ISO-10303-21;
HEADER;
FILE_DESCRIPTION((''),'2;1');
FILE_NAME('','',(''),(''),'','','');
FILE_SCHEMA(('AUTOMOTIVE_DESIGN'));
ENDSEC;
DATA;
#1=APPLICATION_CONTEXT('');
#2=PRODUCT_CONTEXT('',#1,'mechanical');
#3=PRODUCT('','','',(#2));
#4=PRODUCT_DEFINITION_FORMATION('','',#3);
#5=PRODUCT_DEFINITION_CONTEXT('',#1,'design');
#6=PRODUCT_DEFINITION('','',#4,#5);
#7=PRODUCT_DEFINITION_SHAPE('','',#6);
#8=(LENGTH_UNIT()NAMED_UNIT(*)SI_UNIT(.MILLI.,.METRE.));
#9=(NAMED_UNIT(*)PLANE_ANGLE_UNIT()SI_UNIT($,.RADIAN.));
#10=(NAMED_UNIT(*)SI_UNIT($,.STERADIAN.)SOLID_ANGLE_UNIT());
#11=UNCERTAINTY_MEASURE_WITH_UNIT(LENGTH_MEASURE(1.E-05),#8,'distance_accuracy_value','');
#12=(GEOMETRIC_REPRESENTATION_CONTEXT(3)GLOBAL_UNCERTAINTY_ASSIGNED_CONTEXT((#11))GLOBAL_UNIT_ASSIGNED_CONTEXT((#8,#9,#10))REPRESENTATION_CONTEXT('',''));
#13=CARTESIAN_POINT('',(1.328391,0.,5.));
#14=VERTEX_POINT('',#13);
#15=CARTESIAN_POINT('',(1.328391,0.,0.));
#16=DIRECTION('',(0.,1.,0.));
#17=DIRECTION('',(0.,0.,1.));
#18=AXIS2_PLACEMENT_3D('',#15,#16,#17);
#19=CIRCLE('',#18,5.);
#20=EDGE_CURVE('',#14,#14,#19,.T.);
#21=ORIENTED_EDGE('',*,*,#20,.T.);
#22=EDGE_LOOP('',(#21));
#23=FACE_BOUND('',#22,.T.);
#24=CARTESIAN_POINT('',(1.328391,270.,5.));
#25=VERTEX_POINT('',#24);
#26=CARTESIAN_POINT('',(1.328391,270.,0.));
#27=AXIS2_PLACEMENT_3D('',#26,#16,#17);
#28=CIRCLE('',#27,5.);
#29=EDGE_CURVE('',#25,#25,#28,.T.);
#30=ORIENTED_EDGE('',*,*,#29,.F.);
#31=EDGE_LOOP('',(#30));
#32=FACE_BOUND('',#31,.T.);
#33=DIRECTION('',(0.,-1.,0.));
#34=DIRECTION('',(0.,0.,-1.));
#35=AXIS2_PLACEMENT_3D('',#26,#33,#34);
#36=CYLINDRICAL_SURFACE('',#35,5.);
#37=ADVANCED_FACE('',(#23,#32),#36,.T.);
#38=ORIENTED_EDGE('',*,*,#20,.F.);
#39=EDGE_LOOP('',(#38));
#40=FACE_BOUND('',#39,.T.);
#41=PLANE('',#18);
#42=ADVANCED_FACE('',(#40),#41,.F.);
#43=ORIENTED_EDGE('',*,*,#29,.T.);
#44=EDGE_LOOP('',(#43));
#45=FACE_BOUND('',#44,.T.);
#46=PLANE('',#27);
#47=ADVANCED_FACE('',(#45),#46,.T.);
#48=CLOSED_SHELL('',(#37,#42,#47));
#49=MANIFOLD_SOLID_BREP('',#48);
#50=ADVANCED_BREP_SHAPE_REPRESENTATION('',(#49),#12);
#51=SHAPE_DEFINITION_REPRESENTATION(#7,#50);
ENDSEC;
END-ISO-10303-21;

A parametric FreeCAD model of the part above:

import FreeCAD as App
import Part
import Sketcher
from FreeCAD import Vector
Q = App.Units.Quantity

doc = App.newDocument("Part")
body = doc.addObject("PartDesign::Body", "Body")

sketch1 = doc.addObject("Sketcher::SketchObject", "Sketch")
body.addObject(sketch1)
sketch1.AttachmentSupport = (doc.XZ_Plane, [""])
sketch1.MapMode = "FlatFace"
sketch1.addGeometry(Part.Circle(Vector(1, 0, 0), Vector(0, 0, 1), 5), False)
sketch1.addConstraint(Sketcher.Constraint("PointOnObject", 0, 3, -1))
sketch1.addConstraint(Sketcher.Constraint("Diameter", 0, Q("10 mm")))
sketch1.addConstraint(Sketcher.Constraint("DistanceX", -1, 1, 0, 3, Q("1.328391 mm")))
pad1 = doc.addObject("PartDesign::Pad", "Pad")
body.addObject(pad1)
pad1.Profile = sketch1
pad1.Length = 270
pad1.Reversed = True

doc.recompute()
